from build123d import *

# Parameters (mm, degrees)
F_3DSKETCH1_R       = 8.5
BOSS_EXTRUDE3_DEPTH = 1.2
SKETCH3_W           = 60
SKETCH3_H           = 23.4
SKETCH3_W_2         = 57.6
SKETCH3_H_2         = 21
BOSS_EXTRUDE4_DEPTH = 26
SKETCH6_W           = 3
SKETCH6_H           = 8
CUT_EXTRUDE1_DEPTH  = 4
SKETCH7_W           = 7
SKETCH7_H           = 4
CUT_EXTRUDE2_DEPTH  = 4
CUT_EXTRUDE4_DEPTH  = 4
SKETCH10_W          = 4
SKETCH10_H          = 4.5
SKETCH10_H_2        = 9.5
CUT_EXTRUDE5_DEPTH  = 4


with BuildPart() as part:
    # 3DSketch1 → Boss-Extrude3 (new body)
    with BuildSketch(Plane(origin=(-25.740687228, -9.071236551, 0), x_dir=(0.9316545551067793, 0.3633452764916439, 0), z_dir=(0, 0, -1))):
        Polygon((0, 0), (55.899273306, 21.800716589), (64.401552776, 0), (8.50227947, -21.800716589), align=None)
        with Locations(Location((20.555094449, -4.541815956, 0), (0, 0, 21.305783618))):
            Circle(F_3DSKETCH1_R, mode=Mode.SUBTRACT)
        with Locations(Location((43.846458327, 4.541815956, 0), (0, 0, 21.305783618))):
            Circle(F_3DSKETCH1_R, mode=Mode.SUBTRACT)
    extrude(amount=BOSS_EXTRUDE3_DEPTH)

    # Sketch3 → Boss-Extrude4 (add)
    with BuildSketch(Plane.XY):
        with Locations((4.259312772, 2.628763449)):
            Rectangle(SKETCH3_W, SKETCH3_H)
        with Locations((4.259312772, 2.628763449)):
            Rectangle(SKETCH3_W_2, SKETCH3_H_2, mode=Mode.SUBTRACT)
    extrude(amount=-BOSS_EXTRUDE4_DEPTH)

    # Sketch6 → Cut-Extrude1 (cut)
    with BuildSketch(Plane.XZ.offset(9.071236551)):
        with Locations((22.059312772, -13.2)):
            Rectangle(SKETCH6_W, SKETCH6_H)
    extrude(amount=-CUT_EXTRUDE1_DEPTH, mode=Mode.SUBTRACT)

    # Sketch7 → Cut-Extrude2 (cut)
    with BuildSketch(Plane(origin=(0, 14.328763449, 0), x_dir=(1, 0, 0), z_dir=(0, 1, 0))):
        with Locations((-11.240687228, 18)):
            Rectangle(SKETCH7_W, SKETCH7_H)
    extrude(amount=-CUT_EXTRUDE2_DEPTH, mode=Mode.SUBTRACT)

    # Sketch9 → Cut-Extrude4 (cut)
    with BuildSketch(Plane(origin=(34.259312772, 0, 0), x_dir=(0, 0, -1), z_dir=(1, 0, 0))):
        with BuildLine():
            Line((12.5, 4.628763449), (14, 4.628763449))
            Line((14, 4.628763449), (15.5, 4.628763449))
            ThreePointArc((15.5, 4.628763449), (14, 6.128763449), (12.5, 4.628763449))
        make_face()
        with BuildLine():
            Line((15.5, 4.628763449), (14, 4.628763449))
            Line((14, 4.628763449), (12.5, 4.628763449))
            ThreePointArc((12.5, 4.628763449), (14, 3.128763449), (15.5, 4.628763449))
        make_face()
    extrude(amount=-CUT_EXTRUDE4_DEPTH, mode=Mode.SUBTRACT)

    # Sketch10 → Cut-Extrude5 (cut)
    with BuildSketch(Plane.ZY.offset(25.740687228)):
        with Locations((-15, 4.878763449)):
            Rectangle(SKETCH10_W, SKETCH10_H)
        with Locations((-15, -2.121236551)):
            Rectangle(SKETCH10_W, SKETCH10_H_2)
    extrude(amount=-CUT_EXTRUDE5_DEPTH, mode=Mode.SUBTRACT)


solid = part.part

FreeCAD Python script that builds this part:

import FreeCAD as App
import Part
import Sketcher
Q = App.Units.Quantity


def add_polygon(sketch, points):
    """Adds a closed chain of lines whose ends are joined by coincident constraints."""
    first, n = sketch.GeometryCount, len(points)
    for a, b in zip(points, points[1:] + points[:1]):
        sketch.addGeometry(Part.LineSegment(App.Vector(*a, 0), App.Vector(*b, 0)), False)
    for i in range(n):
        sketch.addConstraint(Sketcher.Constraint("Coincident", first + i, 2, first + (i + 1) % n, 1))

doc = App.newDocument("Part")
body = doc.addObject("PartDesign::Body", "Body")

sketch1 = doc.addObject("Sketcher::SketchObject", "Sketch")
body.addObject(sketch1)
sketch1.AttachmentSupport = (doc.XY_Plane, [""])
sketch1.MapMode = "FlatFace"
add_polygon(sketch1, [(34, -9), (-26, -9), (-26, 14), (34, 14)])
sketch1.addGeometry(Part.Circle(App.Vector(-8, 3, 0), App.Vector(0, 0, 1), 8), False)
sketch1.addGeometry(Part.Circle(App.Vector(17, 3, 0), App.Vector(0, 0, 1), 8), False)
sketch1.addConstraint([
    Sketcher.Constraint("Horizontal", 0),
    Sketcher.Constraint("Vertical", 1),
    Sketcher.Constraint("Horizontal", 2),
    Sketcher.Constraint("Vertical", 3),
    Sketcher.Constraint("Equal", 4, 5),
    Sketcher.Constraint("Horizontal", 4, 3, 5, 3),
    Sketcher.Constraint("Diameter", 4, Q("17 mm")),
    Sketcher.Constraint("DistanceX", 0, 2, 0, 1, Q("60 mm")),
    Sketcher.Constraint("DistanceY", 1, 1, 1, 2, Q("23.4 mm")),
    Sketcher.Constraint("DistanceX", 4, 3, 5, 3, Q("25 mm")),
    Sketcher.Constraint("DistanceX", 0, 2, 4, 3, Q("17.5 mm")),
    Sketcher.Constraint("DistanceY", 0, 2, 4, 3, Q("11.7 mm")),
    Sketcher.Constraint("DistanceX", 4, 3, -1, 1, Q("8.240687 mm")),
    Sketcher.Constraint("DistanceY", -1, 1, 4, 3, Q("2.628763 mm")),
])
pad1 = doc.addObject("PartDesign::Pad", "Pad")
body.addObject(pad1)
pad1.Profile = sketch1
pad1.Length = 1.2
pad1.Reversed = True

sketch2 = doc.addObject("Sketcher::SketchObject", "Sketch001")
body.addObject(sketch2)
sketch2.AttachmentSupport = (doc.XY_Plane, [""])
sketch2.MapMode = "FlatFace"
add_polygon(sketch2, [(-26, 14), (-26, -9), (34, -9), (34, 14)])
add_polygon(sketch2, [(33, -8), (-25, -8), (-25, 13), (33, 13)])
sketch2.addConstraint([
    Sketcher.Constraint("Vertical", 0),
    Sketcher.Constraint("Horizontal", 1),
    Sketcher.Constraint("Vertical", 2),
    Sketcher.Constraint("Horizontal", 3),
    Sketcher.Constraint("Horizontal", 4),
    Sketcher.Constraint("Vertical", 5),
    Sketcher.Constraint("Horizontal", 6),
    Sketcher.Constraint("Vertical", 7),
    Sketcher.Constraint("DistanceX", 1, 1, 1, 2, Q("60 mm")),
    Sketcher.Constraint("DistanceY", 5, 1, 5, 2, Q("21 mm")),
    Sketcher.Constraint("DistanceX", 4, 2, 4, 1, Q("57.6 mm")),
    Sketcher.Constraint("DistanceY", 0, 2, 0, 1, Q("23.4 mm")),
    Sketcher.Constraint("DistanceX", 0, 2, 4, 2, Q("1.2 mm")),
    Sketcher.Constraint("DistanceY", 0, 2, 4, 2, Q("1.2 mm")),
    Sketcher.Constraint("DistanceX", 0, 2, -1, 1, Q("25.740687 mm")),
    Sketcher.Constraint("DistanceY", 0, 2, -1, 1, Q("9.071237 mm")),
])
pad2 = doc.addObject("PartDesign::Pad", "Pad001")
body.addObject(pad2)
pad2.Profile = sketch2
pad2.Length = 26
pad2.Reversed = True

sketch3 = doc.addObject("Sketcher::SketchObject", "Sketch002")
body.addObject(sketch3)
sketch3.AttachmentSupport = (doc.XZ_Plane, [""])
sketch3.MapMode = "FlatFace"
sketch3.AttachmentOffset = App.Placement(App.Vector(0, 0, 9.071237), App.Rotation())
add_polygon(sketch3, [(20.6, -9.2), (20.6, -17.2), (23.6, -17.2), (23.6, -9.2)])
sketch3.addConstraint([
    Sketcher.Constraint("Vertical", 0),
    Sketcher.Constraint("Horizontal", 1),
    Sketcher.Constraint("Vertical", 2),
    Sketcher.Constraint("Horizontal", 3),
    Sketcher.Constraint("DistanceX", 1, 1, 1, 2, Q("3 mm")),
    Sketcher.Constraint("DistanceY", 0, 2, 0, 1, Q("8 mm")),
    Sketcher.Constraint("DistanceY", 0, 2, -1, 1, Q("17.2 mm")),
    Sketcher.Constraint("DistanceX", -1, 1, 0, 2, Q("20.559313 mm")),
])
pocket1 = doc.addObject("PartDesign::Pocket", "Pocket")
body.addObject(pocket1)
pocket1.Profile = sketch3
pocket1.Length = 4

sketch4 = doc.addObject("Sketcher::SketchObject", "Sketch003")
body.addObject(sketch4)
sketch4.AttachmentSupport = (doc.XZ_Plane, [""])
sketch4.MapMode = "FlatFace"
sketch4.AttachmentOffset = App.Placement(App.Vector(0, 0, -14.328763), App.Rotation())
add_polygon(sketch4, [(-14.7, -20), (-14.7, -16), (-7.7, -16), (-7.7, -20)])
sketch4.addConstraint([
    Sketcher.Constraint("Vertical", 0),
    Sketcher.Constraint("Horizontal", 1),
    Sketcher.Constraint("Vertical", 2),
    Sketcher.Constraint("Horizontal", 3),
    Sketcher.Constraint("DistanceX", 1, 1, 1, 2, Q("7 mm")),
    Sketcher.Constraint("DistanceY", 0, 1, 0, 2, Q("4 mm")),
    Sketcher.Constraint("DistanceY", 0, 2, -1, 1, Q("16 mm")),
    Sketcher.Constraint("DistanceX", 0, 2, -1, 1, Q("14.740687 mm")),
])
pocket2 = doc.addObject("PartDesign::Pocket", "Pocket001")
body.addObject(pocket2)
pocket2.Profile = sketch4
pocket2.Length = 4
pocket2.Reversed = True

sketch5 = doc.addObject("Sketcher::SketchObject", "Sketch004")
body.addObject(sketch5)
sketch5.AttachmentSupport = (doc.YZ_Plane, [""])
sketch5.MapMode = "FlatFace"
sketch5.AttachmentOffset = App.Placement(App.Vector(0, 0, 34.259313), App.Rotation())
sketch5.addGeometry(Part.Circle(App.Vector(4.6, -14, 0), App.Vector(0, 0, 1), 1.5), False)
sketch5.addConstraint([
    Sketcher.Constraint("Diameter", 0, Q("3 mm")),
    Sketcher.Constraint("DistanceY", 0, 3, -1, 1, Q("14 mm")),
    Sketcher.Constraint("DistanceX", -1, 1, 0, 3, Q("4.628763 mm")),
])
pocket3 = doc.addObject("PartDesign::Pocket", "Pocket002")
body.addObject(pocket3)
pocket3.Profile = sketch5
pocket3.Length = 4

sketch6 = doc.addObject("Sketcher::SketchObject", "Sketch005")
body.addObject(sketch6)
sketch6.AttachmentSupport = (doc.YZ_Plane, [""])
sketch6.MapMode = "FlatFace"
sketch6.AttachmentOffset = App.Placement(App.Vector(0, 0, -25.740687), App.Rotation())
add_polygon(sketch6, [(7.1, -17), (-6.9, -17), (-6.9, -13), (7.1, -13)])
sketch6.addConstraint([
    Sketcher.Constraint("Horizontal", 0),
    Sketcher.Constraint("Vertical", 1),
    Sketcher.Constraint("Horizontal", 2),
    Sketcher.Constraint("Vertical", 3),
    Sketcher.Constraint("DistanceX", 0, 2, 0, 1, Q("14 mm")),
    Sketcher.Constraint("DistanceY", 1, 1, 1, 2, Q("4 mm")),
    Sketcher.Constraint("DistanceY", 0, 2, -1, 1, Q("17 mm")),
    Sketcher.Constraint("DistanceX", 0, 2, -1, 1, Q("6.871237 mm")),
])
pocket4 = doc.addObject("PartDesign::Pocket", "Pocket003")
body.addObject(pocket4)
pocket4.Profile = sketch6
pocket4.Length = 4
pocket4.Reversed = True

doc.recompute()
